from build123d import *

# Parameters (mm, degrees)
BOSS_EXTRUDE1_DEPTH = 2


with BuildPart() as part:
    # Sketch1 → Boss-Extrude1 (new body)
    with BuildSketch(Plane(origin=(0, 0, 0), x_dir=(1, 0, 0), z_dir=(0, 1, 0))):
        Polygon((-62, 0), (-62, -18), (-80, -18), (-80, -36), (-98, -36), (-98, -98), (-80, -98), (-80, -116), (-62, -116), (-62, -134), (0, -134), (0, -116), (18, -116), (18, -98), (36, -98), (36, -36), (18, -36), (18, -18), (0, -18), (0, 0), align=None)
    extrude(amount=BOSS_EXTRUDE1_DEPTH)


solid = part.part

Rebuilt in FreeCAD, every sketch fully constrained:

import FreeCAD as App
import Part
import Sketcher
from FreeCAD import Vector


def add_polygon(sketch, points):
    """Adds a closed chain of lines whose ends are joined by coincident constraints."""
    first, n = sketch.GeometryCount, len(points)
    for a, b in zip(points, points[1:] + points[:1]):
        sketch.addGeometry(Part.LineSegment(App.Vector(*a, 0), App.Vector(*b, 0)), False)
    for i in range(n):
        sketch.addConstraint(Sketcher.Constraint("Coincident", first + i, 2, first + (i + 1) % n, 1))

doc = App.newDocument("Part")
body = doc.addObject("PartDesign::Body", "Body")

sketch1 = body.newObject("Sketcher::SketchObject", "Sketch")
sketch1.AttachmentSupport = (doc.getObject("XZ_Plane"), [""])
sketch1.MapMode = "FlatFace"
add_polygon(sketch1, [(-62, 0), (-62, 18), (-80, 18), (-80, 36), (-98, 36), (-98, 98), (-80, 98), (-80, 116), (-62, 116), (-62, 134), (0, 134), (0, 116), (18, 116), (18, 98), (36, 98), (36, 36), (18, 36), (18, 18), (0, 18), (0, 0)])
sketch1.addConstraint(Sketcher.Constraint("Vertical", 0))
sketch1.addConstraint(Sketcher.Constraint("Horizontal", 1))
sketch1.addConstraint(Sketcher.Constraint("Vertical", 2))
sketch1.addConstraint(Sketcher.Constraint("Horizontal", 3))
sketch1.addConstraint(Sketcher.Constraint("Vertical", 4))
sketch1.addConstraint(Sketcher.Constraint("Horizontal", 5))
sketch1.addConstraint(Sketcher.Constraint("Vertical", 6))
sketch1.addConstraint(Sketcher.Constraint("Horizontal", 7))
sketch1.addConstraint(Sketcher.Constraint("Vertical", 8))
sketch1.addConstraint(Sketcher.Constraint("Horizontal", 9))
sketch1.addConstraint(Sketcher.Constraint("Vertical", 10))
sketch1.addConstraint(Sketcher.Constraint("Horizontal", 11))
sketch1.addConstraint(Sketcher.Constraint("Vertical", 12))
sketch1.addConstraint(Sketcher.Constraint("Horizontal", 13))
sketch1.addConstraint(Sketcher.Constraint("Vertical", 14))
sketch1.addConstraint(Sketcher.Constraint("Horizontal", 15))
sketch1.addConstraint(Sketcher.Constraint("Vertical", 16))
sketch1.addConstraint(Sketcher.Constraint("Horizontal", 17))
sketch1.addConstraint(Sketcher.Constraint("Vertical", 18))
sketch1.addConstraint(Sketcher.Constraint("Horizontal", 19))
sketch1.addConstraint(Sketcher.Constraint("Coincident", 18, 2, -1, 1))
sketch1.addConstraint(Sketcher.Constraint("PointOnObject", 9, 2, -2))
sketch1.addConstraint(Sketcher.Constraint("Horizontal", 7, 2, 10, 2))
sketch1.addConstraint(Sketcher.Constraint("Horizontal", 5, 2, 12, 2))
sketch1.addConstraint(Sketcher.Constraint("Horizontal", 3, 2, 14, 2))
sketch1.addConstraint(Sketcher.Constraint("Horizontal", 1, 2, 16, 2))
sketch1.addConstraint(Sketcher.Constraint("Vertical", 2, 2, 5, 2))
sketch1.addConstraint(Sketcher.Constraint("Vertical", 0, 2, 7, 2))
sketch1.addConstraint(Sketcher.Constraint("Vertical", 12, 2, 15, 2))
sketch1.addConstraint(Sketcher.Constraint("Equal", 1, 3))
sketch1.addConstraint(Sketcher.Constraint("Equal", 7, 11))
sketch1.addConstraint(Sketcher.Constraint("Equal", 11, 13))
sketch1.addConstraint(Sketcher.Constraint("Equal", 17, 0))
sketch1.addConstraint(Sketcher.Constraint("Equal", 0, 2))
sketch1.addConstraint(Sketcher.Constraint("Equal", 19, 4))
sketch1.addConstraint(Sketcher.Constraint("Equal", 2, 6))
sketch1.addConstraint(Sketcher.Constraint("Equal", 6, 8))
sketch1.addConstraint(Sketcher.Constraint("DistanceX", 1, 2, 1, 1, 18.0))
sketch1.addConstraint(Sketcher.Constraint("DistanceX", 9, 1, 9, 2, 62.0))
pad1 = body.newObject("PartDesign::Pad", "Pad")
pad1.Profile = sketch1
pad1.Length = 2
pad1.Reversed = True

doc.recompute()
